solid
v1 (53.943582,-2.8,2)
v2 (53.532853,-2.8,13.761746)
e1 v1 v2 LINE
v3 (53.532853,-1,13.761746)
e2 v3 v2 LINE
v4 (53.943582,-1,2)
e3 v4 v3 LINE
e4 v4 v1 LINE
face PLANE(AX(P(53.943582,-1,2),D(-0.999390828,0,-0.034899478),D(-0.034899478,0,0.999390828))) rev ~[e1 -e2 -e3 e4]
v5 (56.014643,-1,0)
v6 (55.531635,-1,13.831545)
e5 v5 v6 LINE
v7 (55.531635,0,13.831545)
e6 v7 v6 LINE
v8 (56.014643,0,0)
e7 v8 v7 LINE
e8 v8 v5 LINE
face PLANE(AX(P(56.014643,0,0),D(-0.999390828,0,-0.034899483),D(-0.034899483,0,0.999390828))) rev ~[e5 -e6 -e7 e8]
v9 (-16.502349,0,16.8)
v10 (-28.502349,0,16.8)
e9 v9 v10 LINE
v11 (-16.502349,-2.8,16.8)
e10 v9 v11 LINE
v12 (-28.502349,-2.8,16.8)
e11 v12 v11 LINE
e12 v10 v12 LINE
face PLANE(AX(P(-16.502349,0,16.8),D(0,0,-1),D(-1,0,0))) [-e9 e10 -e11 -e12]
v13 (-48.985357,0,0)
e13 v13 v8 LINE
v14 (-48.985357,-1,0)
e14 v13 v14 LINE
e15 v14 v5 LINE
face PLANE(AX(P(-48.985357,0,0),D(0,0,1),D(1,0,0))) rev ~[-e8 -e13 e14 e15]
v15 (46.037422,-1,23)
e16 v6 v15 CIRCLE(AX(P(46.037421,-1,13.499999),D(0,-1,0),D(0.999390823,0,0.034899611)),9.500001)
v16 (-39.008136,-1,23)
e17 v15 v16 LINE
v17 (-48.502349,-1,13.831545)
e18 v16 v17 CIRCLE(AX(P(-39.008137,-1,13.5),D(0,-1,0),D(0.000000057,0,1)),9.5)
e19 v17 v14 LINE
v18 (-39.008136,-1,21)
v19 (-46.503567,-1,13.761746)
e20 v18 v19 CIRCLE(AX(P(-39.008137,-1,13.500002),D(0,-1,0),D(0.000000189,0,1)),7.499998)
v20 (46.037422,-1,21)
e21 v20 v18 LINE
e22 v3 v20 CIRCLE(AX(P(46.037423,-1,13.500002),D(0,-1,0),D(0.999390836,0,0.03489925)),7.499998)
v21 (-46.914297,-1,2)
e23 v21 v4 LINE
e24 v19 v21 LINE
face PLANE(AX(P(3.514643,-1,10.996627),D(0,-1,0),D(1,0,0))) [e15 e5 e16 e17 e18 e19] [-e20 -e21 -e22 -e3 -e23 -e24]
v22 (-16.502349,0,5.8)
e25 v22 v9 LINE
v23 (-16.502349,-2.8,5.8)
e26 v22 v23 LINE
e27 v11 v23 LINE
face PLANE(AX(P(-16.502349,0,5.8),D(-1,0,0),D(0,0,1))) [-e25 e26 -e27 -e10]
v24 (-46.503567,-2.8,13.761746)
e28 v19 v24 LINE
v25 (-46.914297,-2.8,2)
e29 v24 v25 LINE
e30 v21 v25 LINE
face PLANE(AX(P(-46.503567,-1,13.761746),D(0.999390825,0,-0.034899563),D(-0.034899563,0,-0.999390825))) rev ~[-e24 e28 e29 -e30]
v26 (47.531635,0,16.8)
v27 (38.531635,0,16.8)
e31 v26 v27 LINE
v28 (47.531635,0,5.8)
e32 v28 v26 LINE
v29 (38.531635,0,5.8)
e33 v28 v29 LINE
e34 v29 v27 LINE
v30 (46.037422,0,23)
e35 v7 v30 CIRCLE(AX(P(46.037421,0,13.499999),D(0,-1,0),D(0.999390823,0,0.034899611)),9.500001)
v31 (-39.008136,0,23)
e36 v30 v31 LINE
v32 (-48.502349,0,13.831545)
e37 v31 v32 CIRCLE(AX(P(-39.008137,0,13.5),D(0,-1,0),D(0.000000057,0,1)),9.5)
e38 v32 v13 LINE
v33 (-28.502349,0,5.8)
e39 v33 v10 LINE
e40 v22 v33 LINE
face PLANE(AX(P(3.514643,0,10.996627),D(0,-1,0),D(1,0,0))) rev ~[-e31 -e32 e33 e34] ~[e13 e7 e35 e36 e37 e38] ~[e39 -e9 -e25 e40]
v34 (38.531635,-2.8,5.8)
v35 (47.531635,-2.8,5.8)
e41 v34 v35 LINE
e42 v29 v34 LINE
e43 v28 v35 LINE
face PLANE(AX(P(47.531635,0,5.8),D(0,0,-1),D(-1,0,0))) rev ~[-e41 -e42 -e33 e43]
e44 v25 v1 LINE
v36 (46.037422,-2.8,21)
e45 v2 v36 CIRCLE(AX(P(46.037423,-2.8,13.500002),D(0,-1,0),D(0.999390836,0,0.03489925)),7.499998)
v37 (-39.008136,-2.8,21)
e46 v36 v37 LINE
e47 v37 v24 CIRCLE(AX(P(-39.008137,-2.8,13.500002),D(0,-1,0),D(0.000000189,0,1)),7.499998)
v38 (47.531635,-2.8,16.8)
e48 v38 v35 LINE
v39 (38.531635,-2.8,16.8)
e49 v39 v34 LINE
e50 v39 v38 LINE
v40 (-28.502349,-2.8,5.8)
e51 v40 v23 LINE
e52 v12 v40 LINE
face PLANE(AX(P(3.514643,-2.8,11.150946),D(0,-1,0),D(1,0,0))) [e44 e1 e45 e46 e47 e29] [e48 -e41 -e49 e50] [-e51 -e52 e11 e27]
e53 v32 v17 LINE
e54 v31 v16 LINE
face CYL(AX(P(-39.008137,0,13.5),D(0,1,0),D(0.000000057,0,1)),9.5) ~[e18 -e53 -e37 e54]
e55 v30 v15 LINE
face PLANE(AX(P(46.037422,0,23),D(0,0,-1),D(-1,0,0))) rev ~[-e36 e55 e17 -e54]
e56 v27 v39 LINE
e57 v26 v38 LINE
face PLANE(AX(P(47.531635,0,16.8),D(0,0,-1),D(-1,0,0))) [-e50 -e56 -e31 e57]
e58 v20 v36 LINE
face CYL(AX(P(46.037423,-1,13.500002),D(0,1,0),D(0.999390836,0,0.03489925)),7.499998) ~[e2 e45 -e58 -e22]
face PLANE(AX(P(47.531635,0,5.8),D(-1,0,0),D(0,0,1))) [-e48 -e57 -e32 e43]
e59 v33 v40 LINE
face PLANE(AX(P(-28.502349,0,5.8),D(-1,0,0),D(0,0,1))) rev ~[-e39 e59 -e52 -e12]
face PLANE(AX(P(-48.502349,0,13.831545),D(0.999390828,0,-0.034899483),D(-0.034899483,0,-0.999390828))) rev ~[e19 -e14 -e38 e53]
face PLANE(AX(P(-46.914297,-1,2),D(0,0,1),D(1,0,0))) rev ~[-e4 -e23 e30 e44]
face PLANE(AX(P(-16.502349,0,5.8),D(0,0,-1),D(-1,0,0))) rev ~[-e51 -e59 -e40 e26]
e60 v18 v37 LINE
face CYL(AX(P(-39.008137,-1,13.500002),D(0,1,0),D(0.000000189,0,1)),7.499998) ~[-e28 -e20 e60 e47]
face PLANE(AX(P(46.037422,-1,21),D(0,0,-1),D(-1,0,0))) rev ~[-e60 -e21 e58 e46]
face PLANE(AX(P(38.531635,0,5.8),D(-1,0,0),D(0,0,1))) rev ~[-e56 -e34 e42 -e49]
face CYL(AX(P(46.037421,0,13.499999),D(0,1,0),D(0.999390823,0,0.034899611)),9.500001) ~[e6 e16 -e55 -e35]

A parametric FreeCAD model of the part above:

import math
import FreeCAD as App
import Part
import Sketcher
Q = App.Units.Quantity


def add_polygon(sketch, points):
    """Adds a closed chain of lines whose ends are joined by coincident constraints."""
    first, n = sketch.GeometryCount, len(points)
    for a, b in zip(points, points[1:] + points[:1]):
        sketch.addGeometry(Part.LineSegment(App.Vector(*a, 0), App.Vector(*b, 0)), False)
    for i in range(n):
        sketch.addConstraint(Sketcher.Constraint("Coincident", first + i, 2, first + (i + 1) % n, 1))

doc = App.newDocument("Part")
params = doc.addObject("Spreadsheet::Sheet", "Params")
for row, (alias, value) in enumerate([
    ("sketch1_radius", "9.500001 mm"),
    ("sketch1_width", "105 mm"),
    ("pad1_length", "1 mm"),
    ("sketch2_radius", "7.499998 mm"),
    ("pad2_length", "1.8 mm"),
    ("sketch3_width", "9 mm"),
    ("sketch3_width2", "12 mm"),
    ("sketch3_height", "11 mm"),
], start=1):
    params.set(f"A{row}", alias)
    params.set(f"B{row}", "=" + value)
    params.setAlias(f"B{row}", alias)

body = doc.addObject("PartDesign::Body", "Body")

# Sketch on XZ plane
sketch1 = body.newObject("Sketcher::SketchObject", "Sketch")
sketch1.AttachmentSupport = (doc.getObject("XZ_Plane"), [""])
sketch1.MapMode = "FlatFace"
sketch1.addGeometry([
    Part.LineSegment(App.Vector(-48.502349, 13.831545, 0), App.Vector(-48.985357, 0, 0)),  # 0
    Part.LineSegment(App.Vector(-48.985357, 0, 0), App.Vector(56.014643, 0, 0)),  # 1
    Part.LineSegment(App.Vector(56.014643, 0, 0), App.Vector(55.531635, 13.831545, 0)),  # 2
    Part.ArcOfCircle(Part.Circle(App.Vector(46.037421, 13.499999, 0), App.Vector(0, 0, 1), 9.500001), math.radians(2.000007), math.radians(89.999993)),  # 3
    Part.LineSegment(App.Vector(46.037422, 23, 0), App.Vector(-39.008136, 23, 0)),  # 4
    Part.ArcOfCircle(Part.Circle(App.Vector(-39.008137, 13.5, 0), App.Vector(0, 0, 1), 9.5), math.radians(89.999997), math.radians(178.000004)),  # 5
], False)
sketch1.addConstraint([
    Sketcher.Constraint("Coincident", 0, 2, 1, 1),
    Sketcher.Constraint("Coincident", 1, 2, 2, 1),
    Sketcher.Constraint("Tangent", 2, 2, 3, 1),
    Sketcher.Constraint("Tangent", 3, 2, 4, 1),
    Sketcher.Constraint("Tangent", 4, 2, 5, 1),
    Sketcher.Constraint("Tangent", 5, 2, 0, 1),
    Sketcher.Constraint("Horizontal", 1),
    Sketcher.Constraint("Horizontal", 4),
    Sketcher.Constraint("Equal", 3, 5),
    Sketcher.Constraint("PointOnObject", 0, 2, -1),
    Sketcher.Constraint("Horizontal", 2, 2, 5, 2),
    Sketcher.Constraint("Radius", 3, Q("9.500001 mm")),
    Sketcher.Constraint("DistanceX", 1, 1, 1, 2, Q("105 mm")),
    Sketcher.Constraint("Angle", 0, Q("-91.999999 deg")),
    Sketcher.Constraint("DistanceY", -1, 1, 3, 2, Q("23 mm")),
    Sketcher.Constraint("DistanceX", -1, 1, 3, 3, Q("46.037421 mm")),
])
sketch1.setExpression("Constraints[11]", "Params.sketch1_radius")
sketch1.setExpression("Constraints[12]", "Params.sketch1_width")
pad1 = body.newObject("PartDesign::Pad", "Pad")
pad1.Profile = sketch1
pad1.setExpression("Length", "Params.pad1_length")

# Sketch on XZ plane
sketch2 = body.newObject("Sketcher::SketchObject", "Sketch001")
sketch2.AttachmentSupport = (doc.getObject("XZ_Plane"), [""])
sketch2.MapMode = "FlatFace"
sketch2.AttachmentOffset = App.Placement(App.Vector(0, 0, 1), App.Rotation())
sketch2.addGeometry([
    Part.LineSegment(App.Vector(46.037422, 21, 0), App.Vector(-39.008136, 21, 0)),  # 0
    Part.ArcOfCircle(Part.Circle(App.Vector(-39.008137, 13.500002, 0), App.Vector(0, 0, 1), 7.499998), math.radians(89.999989), math.radians(178.000014)),  # 1
    Part.LineSegment(App.Vector(-46.503567, 13.761746, 0), App.Vector(-46.914297, 2, 0)),  # 2
    Part.LineSegment(App.Vector(-46.914297, 2, 0), App.Vector(53.943582, 2, 0)),  # 3
    Part.LineSegment(App.Vector(53.943582, 2, 0), App.Vector(53.532853, 13.761746, 0)),  # 4
    Part.ArcOfCircle(Part.Circle(App.Vector(46.037423, 13.500002, 0), App.Vector(0, 0, 1), 7.499998), math.radians(1.999986), math.radians(90.000011)),  # 5
], False)
sketch2.addConstraint([
    Sketcher.Constraint("Tangent", 0, 2, 1, 1),
    Sketcher.Constraint("Tangent", 1, 2, 2, 1),
    Sketcher.Constraint("Coincident", 2, 2, 3, 1),
    Sketcher.Constraint("Coincident", 3, 2, 4, 1),
    Sketcher.Constraint("Tangent", 4, 2, 5, 1),
    Sketcher.Constraint("Tangent", 5, 2, 0, 1),
    Sketcher.Constraint("Horizontal", 0),
    Sketcher.Constraint("Horizontal", 3),
    Sketcher.Constraint("Equal", 1, 5),
    Sketcher.Constraint("Horizontal", 1, 2, 4, 2),
    Sketcher.Constraint("Radius", 1, Q("7.499998 mm")),
    Sketcher.Constraint("Angle", 2, Q("-92.000004 deg")),
    Sketcher.Constraint("DistanceY", -1, 1, 0, 2, Q("21 mm")),
    Sketcher.Constraint("DistanceY", -1, 1, 2, 2, Q("2 mm")),
    Sketcher.Constraint("DistanceX", 0, 2, 0, 1, Q("85.045558 mm")),
    Sketcher.Constraint("DistanceX", 1, 3, -1, 1, Q("39.008137 mm")),
])
sketch2.setExpression("Constraints[10]", "Params.sketch2_radius")
pad2 = body.newObject("PartDesign::Pad", "Pad001")
pad2.Profile = sketch2
pad2.setExpression("Length", "Params.pad2_length")

# Sketch on XZ plane
sketch3 = body.newObject("Sketcher::SketchObject", "Sketch002")
sketch3.AttachmentSupport = (doc.getObject("XZ_Plane"), [""])
sketch3.MapMode = "FlatFace"
add_polygon(sketch3, [(47.531635, 16.8), (47.531635, 5.8), (38.531635, 5.8), (38.531635, 16.8)])  # lines 0-3
add_polygon(sketch3, [(-16.502349, 16.8), (-16.502349, 5.8), (-28.502349, 5.8), (-28.502349, 16.8)])  # lines 4-7
sketch3.addConstraint([
    Sketcher.Constraint("Vertical", 0),
    Sketcher.Constraint("Horizontal", 1),
    Sketcher.Constraint("Vertical", 2),
    Sketcher.Constraint("Horizontal", 3),
    Sketcher.Constraint("Vertical", 4),
    Sketcher.Constraint("Horizontal", 5),
    Sketcher.Constraint("Vertical", 6),
    Sketcher.Constraint("Horizontal", 7),
    Sketcher.Constraint("Horizontal", 1, 2, 4, 2),
    Sketcher.Constraint("Horizontal", 3, 2, 6, 2),
    Sketcher.Constraint("DistanceX", 1, 2, 1, 1, Q("9 mm")),
    Sketcher.Constraint("DistanceX", 5, 2, 5, 1, Q("12 mm")),
    Sketcher.Constraint("DistanceY", 0, 2, 0, 1, Q("11 mm")),
    Sketcher.Constraint("DistanceY", -1, 1, 0, 2, Q("5.8 mm")),
    Sketcher.Constraint("DistanceX", 4, 2, -1, 1, Q("16.502349 mm")),
    Sketcher.Constraint("DistanceX", -1, 1, 0, 2, Q("47.531635 mm")),
])
sketch3.setExpression("Constraints[18]", "Params.sketch3_width")
sketch3.setExpression("Constraints[19]", "Params.sketch3_width2")
sketch3.setExpression("Constraints[20]", "Params.sketch3_height")
pocket1 = body.newObject("PartDesign::Pocket", "Pocket")
pocket1.Profile = sketch3
pocket1.Type = "ThroughAll"
pocket1.Reversed = True

doc.recompute()
